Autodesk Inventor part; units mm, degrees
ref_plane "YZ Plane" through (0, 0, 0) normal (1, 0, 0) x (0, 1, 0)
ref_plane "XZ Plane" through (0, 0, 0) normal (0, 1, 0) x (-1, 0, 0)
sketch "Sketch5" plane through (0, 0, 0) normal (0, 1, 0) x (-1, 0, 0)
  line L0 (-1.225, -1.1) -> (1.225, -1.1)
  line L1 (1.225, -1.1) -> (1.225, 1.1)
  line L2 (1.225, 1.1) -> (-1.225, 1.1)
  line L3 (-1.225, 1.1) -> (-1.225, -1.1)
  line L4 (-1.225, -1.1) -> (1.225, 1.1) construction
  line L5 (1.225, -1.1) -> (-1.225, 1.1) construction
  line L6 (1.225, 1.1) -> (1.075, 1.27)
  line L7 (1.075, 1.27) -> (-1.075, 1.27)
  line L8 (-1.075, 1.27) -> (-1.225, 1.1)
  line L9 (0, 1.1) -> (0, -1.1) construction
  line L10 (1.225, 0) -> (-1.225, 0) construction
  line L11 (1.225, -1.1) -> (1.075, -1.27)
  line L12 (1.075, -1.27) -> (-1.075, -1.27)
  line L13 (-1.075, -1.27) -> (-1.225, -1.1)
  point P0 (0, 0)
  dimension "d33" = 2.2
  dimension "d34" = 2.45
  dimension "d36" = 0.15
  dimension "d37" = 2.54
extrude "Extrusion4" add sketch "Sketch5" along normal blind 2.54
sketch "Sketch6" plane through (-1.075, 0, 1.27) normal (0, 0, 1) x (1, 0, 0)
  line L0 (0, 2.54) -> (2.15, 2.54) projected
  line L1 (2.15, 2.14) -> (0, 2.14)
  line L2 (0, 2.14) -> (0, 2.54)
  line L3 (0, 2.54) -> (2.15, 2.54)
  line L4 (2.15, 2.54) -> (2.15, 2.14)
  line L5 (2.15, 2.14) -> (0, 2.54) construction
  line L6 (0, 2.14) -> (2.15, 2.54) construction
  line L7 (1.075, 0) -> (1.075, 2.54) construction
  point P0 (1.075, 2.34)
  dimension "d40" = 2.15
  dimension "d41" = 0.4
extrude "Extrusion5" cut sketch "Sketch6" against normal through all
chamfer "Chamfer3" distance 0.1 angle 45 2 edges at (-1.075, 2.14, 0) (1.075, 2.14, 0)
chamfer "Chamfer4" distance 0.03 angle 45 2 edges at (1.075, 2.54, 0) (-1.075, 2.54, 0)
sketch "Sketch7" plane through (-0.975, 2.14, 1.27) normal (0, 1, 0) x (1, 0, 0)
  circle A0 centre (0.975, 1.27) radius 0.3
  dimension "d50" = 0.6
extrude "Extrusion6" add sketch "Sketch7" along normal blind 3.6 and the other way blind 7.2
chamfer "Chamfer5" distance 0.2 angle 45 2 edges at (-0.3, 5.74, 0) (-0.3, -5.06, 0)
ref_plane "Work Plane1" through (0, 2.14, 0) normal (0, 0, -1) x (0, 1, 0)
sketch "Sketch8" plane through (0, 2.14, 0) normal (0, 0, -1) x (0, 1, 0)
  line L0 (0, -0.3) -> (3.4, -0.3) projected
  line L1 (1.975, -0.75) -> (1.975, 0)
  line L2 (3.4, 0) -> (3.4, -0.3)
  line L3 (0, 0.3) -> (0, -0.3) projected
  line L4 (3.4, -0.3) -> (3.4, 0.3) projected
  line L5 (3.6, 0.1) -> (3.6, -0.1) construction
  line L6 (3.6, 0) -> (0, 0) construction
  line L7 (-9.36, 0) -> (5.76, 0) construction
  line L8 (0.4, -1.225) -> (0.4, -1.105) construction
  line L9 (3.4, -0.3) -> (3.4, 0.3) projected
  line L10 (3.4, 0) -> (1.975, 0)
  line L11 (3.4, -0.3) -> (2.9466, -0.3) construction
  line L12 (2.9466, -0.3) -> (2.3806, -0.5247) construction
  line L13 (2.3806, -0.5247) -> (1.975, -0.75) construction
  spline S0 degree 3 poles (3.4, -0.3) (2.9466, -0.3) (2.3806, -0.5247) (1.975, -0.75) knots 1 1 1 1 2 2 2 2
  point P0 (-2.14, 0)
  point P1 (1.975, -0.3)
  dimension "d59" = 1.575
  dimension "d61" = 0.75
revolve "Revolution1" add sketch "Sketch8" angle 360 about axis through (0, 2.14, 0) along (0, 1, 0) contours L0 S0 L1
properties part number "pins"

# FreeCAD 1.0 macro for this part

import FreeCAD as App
import Part
import Sketcher
Q = App.Units.Quantity


def edges_at(feature, points):
    """Names of the edges that pass closest to the given points."""
    edges = feature.Shape.Edges
    near = lambda p: min(range(len(edges)), key=lambda i: edges[i].distToShape(Part.Vertex(*p))[0])
    return sorted({f"Edge{near(p) + 1}" for p in points})


def add_polygon(sketch, points):
    """Adds a closed chain of lines whose ends are joined by coincident constraints."""
    first, n = sketch.GeometryCount, len(points)
    for a, b in zip(points, points[1:] + points[:1]):
        sketch.addGeometry(Part.LineSegment(App.Vector(*a, 0), App.Vector(*b, 0)), False)
    for i in range(n):
        sketch.addConstraint(Sketcher.Constraint("Coincident", first + i, 2, first + (i + 1) % n, 1))

doc = App.newDocument("Part")
params = doc.addObject("Spreadsheet::Sheet", "Params")
for row, (alias, value) in enumerate([
    ("sketch1_height", "2.2 mm"),
    ("pad1_length", "2.54 mm"),
    ("sketch2_height", "0.4 mm"),
    ("sketch2_width", "2.15 mm"),
    ("chamfer_size", "0.1 mm"),
    ("chamfer2_size", "0.03 mm"),
    ("sketch3_diameter", "0.6 mm"),
    ("pad2_length", "3.6 mm"),
    ("pad2_length2", "7.2 mm"),
    ("chamfer3_size", "0.2 mm"),
    ("revolution_angle", "360 deg"),
], start=1):
    params.set(f"A{row}", alias)
    params.set(f"B{row}", "=" + value)
    params.setAlias(f"B{row}", alias)

body = doc.addObject("PartDesign::Body", "Body")

sketch1 = doc.addObject("Sketcher::SketchObject", "Sketch")
body.addObject(sketch1)
sketch1.AttachmentSupport = (doc.XZ_Plane, [""])
sketch1.MapMode = "FlatFace"
add_polygon(sketch1, [(1.23, 1.1), (1.23, -1.1), (1.07, -1.27), (-1.07, -1.27), (-1.23, -1.1), (-1.23, 1.1), (-1.07, 1.27), (1.07, 1.27)])
sketch1.addConstraint(Sketcher.Constraint("Vertical", 0))
sketch1.addConstraint(Sketcher.Constraint("Horizontal", 2))
sketch1.addConstraint(Sketcher.Constraint("Vertical", 4))
sketch1.addConstraint(Sketcher.Constraint("Horizontal", 6))
sketch1.addConstraint(Sketcher.Constraint("Symmetric", 0, 2, 4, 2, -1, 1))
sketch1.addConstraint(Sketcher.Constraint("Symmetric", 1, 2, 5, 2, -1, 1))
sketch1.addConstraint(Sketcher.Constraint("Parallel", 3, 7))
sketch1.addConstraint(Sketcher.Constraint("Horizontal", 0, 2, 3, 2))
sketch1.addConstraint(Sketcher.Constraint("Horizontal", 4, 2, 7, 2))
sketch1.addConstraint(Sketcher.Constraint("Vertical", 2, 2, 5, 2))
sketch1.addConstraint(Sketcher.Constraint("DistanceY", 0, 2, 0, 1, Q("2.2 mm")))
sketch1.addConstraint(Sketcher.Constraint("DistanceX", 1, 2, 0, 2, Q("0.15 mm")))
sketch1.addConstraint(Sketcher.Constraint("DistanceX", 3, 2, 0, 2, Q("2.45 mm")))
sketch1.addConstraint(Sketcher.Constraint("DistanceY", 2, 2, 5, 2, Q("2.54 mm")))
sketch1.setExpression("Constraints[18]", "Params.sketch1_height")
pad1 = doc.addObject("PartDesign::Pad", "Pad")
body.addObject(pad1)
pad1.Profile = sketch1
pad1.setExpression("Length", "Params.pad1_length")
pad1.Reversed = True

sketch2 = doc.addObject("Sketcher::SketchObject", "Sketch001")
body.addObject(sketch2)
sketch2.AttachmentSupport = (doc.XY_Plane, [""])
sketch2.MapMode = "FlatFace"
sketch2.AttachmentOffset = App.Placement(App.Vector(0, 0, 1.27), App.Rotation())
add_polygon(sketch2, [(1.07, 2.54), (-1.07, 2.54), (-1.07, 2.14), (1.07, 2.14)])
sketch2.addConstraint(Sketcher.Constraint("Horizontal", 0))
sketch2.addConstraint(Sketcher.Constraint("Vertical", 1))
sketch2.addConstraint(Sketcher.Constraint("Horizontal", 2))
sketch2.addConstraint(Sketcher.Constraint("Vertical", 3))
sketch2.addConstraint(Sketcher.Constraint("DistanceY", 1, 2, 1, 1, Q("0.4 mm")))
sketch2.addConstraint(Sketcher.Constraint("DistanceX", 0, 2, 0, 1, Q("2.15 mm")))
sketch2.addConstraint(Sketcher.Constraint("DistanceY", -1, 1, 0, 2, Q("2.54 mm")))
sketch2.addConstraint(Sketcher.Constraint("DistanceX", 0, 2, -1, 1, Q("1.075 mm")))
sketch2.setExpression("Constraints[8]", "Params.sketch2_height")
sketch2.setExpression("Constraints[9]", "Params.sketch2_width")
pocket1 = doc.addObject("PartDesign::Pocket", "Pocket")
body.addObject(pocket1)
pocket1.Profile = sketch2
pocket1.Type = "ThroughAll"
doc.recompute()

chamfer = doc.addObject("PartDesign::Chamfer", "Chamfer")
body.addObject(chamfer)
chamfer.Base = (pocket1, edges_at(pocket1, [(-1.075, 2.14, 0), (1.075, 2.14, 0)]))
chamfer.setExpression("Size", "Params.chamfer_size")
doc.recompute()

chamfer2 = doc.addObject("PartDesign::Chamfer", "Chamfer001")
body.addObject(chamfer2)
chamfer2.Base = (chamfer, edges_at(chamfer, [(1.075, 2.54, 0), (-1.075, 2.54, 0)]))
chamfer2.setExpression("Size", "Params.chamfer2_size")

sketch3 = doc.addObject("Sketcher::SketchObject", "Sketch002")
body.addObject(sketch3)
sketch3.AttachmentSupport = (doc.XZ_Plane, [""])
sketch3.MapMode = "FlatFace"
sketch3.AttachmentOffset = App.Placement(App.Vector(0, 0, -2.14), App.Rotation())
sketch3.addGeometry(Part.Circle(App.Vector(0, 0, 0), App.Vector(0, 0, 1), 0.3), False)
sketch3.addConstraint(Sketcher.Constraint("Coincident", 0, 3, -1, 1))
sketch3.addConstraint(Sketcher.Constraint("Diameter", 0, Q("0.6 mm")))
sketch3.setExpression("Constraints[1]", "Params.sketch3_diameter")
pad2 = doc.addObject("PartDesign::Pad", "Pad001")
body.addObject(pad2)
pad2.Profile = sketch3
pad2.Type = "TwoLengths"
pad2.setExpression("Length", "Params.pad2_length")
pad2.setExpression("Length2", "Params.pad2_length2")
pad2.Reversed = True
doc.recompute()

chamfer3 = doc.addObject("PartDesign::Chamfer", "Chamfer002")
body.addObject(chamfer3)
chamfer3.Base = (pad2, edges_at(pad2, [(-0.3, 5.74, 0), (-0.3, -5.06, 0)]))
chamfer3.setExpression("Size", "Params.chamfer3_size")

sketch4 = doc.addObject("Sketcher::SketchObject", "Sketch003")
body.addObject(sketch4)
sketch4.AttachmentSupport = (doc.XY_Plane, [""])
sketch4.MapMode = "FlatFace"
sketch4.addGeometry(Part.LineSegment(App.Vector(-0.3, 5.54, 0), App.Vector(-0.3, 4.115, 0)), False)
sketch4.addGeometry(Part.LineSegment(App.Vector(-0.3, 4.115, 0), App.Vector(-0.75, 4.115, 0)), False)
sketch4.addGeometry(Part.BSplineCurve([App.Vector(-0.3, 5.54, 0), App.Vector(-0.3, 5.0866, 0), App.Vector(-0.5247, 4.5206, 0), App.Vector(-0.75, 4.115, 0)], [4, 4], [1, 2], False, 3, [1, 1, 1, 1], False), False)
sketch4.addConstraint(Sketcher.Constraint("Block", 2))
sketch4.addConstraint(Sketcher.Constraint("Coincident", 0, 2, 1, 1))
sketch4.addConstraint(Sketcher.Constraint("Coincident", 1, 2, 2, 2))
sketch4.addConstraint(Sketcher.Constraint("Coincident", 2, 1, 0, 1))
sketch4.addConstraint(Sketcher.Constraint("Vertical", 0))
sketch4.addConstraint(Sketcher.Constraint("Horizontal", 1))
revolution = doc.addObject("PartDesign::Revolution", "Revolution")
body.addObject(revolution)
revolution.Profile = sketch4
revolution.ReferenceAxis = (sketch4, ["V_Axis"])
revolution.setExpression("Angle", "Params.revolution_angle")

doc.recompute()
